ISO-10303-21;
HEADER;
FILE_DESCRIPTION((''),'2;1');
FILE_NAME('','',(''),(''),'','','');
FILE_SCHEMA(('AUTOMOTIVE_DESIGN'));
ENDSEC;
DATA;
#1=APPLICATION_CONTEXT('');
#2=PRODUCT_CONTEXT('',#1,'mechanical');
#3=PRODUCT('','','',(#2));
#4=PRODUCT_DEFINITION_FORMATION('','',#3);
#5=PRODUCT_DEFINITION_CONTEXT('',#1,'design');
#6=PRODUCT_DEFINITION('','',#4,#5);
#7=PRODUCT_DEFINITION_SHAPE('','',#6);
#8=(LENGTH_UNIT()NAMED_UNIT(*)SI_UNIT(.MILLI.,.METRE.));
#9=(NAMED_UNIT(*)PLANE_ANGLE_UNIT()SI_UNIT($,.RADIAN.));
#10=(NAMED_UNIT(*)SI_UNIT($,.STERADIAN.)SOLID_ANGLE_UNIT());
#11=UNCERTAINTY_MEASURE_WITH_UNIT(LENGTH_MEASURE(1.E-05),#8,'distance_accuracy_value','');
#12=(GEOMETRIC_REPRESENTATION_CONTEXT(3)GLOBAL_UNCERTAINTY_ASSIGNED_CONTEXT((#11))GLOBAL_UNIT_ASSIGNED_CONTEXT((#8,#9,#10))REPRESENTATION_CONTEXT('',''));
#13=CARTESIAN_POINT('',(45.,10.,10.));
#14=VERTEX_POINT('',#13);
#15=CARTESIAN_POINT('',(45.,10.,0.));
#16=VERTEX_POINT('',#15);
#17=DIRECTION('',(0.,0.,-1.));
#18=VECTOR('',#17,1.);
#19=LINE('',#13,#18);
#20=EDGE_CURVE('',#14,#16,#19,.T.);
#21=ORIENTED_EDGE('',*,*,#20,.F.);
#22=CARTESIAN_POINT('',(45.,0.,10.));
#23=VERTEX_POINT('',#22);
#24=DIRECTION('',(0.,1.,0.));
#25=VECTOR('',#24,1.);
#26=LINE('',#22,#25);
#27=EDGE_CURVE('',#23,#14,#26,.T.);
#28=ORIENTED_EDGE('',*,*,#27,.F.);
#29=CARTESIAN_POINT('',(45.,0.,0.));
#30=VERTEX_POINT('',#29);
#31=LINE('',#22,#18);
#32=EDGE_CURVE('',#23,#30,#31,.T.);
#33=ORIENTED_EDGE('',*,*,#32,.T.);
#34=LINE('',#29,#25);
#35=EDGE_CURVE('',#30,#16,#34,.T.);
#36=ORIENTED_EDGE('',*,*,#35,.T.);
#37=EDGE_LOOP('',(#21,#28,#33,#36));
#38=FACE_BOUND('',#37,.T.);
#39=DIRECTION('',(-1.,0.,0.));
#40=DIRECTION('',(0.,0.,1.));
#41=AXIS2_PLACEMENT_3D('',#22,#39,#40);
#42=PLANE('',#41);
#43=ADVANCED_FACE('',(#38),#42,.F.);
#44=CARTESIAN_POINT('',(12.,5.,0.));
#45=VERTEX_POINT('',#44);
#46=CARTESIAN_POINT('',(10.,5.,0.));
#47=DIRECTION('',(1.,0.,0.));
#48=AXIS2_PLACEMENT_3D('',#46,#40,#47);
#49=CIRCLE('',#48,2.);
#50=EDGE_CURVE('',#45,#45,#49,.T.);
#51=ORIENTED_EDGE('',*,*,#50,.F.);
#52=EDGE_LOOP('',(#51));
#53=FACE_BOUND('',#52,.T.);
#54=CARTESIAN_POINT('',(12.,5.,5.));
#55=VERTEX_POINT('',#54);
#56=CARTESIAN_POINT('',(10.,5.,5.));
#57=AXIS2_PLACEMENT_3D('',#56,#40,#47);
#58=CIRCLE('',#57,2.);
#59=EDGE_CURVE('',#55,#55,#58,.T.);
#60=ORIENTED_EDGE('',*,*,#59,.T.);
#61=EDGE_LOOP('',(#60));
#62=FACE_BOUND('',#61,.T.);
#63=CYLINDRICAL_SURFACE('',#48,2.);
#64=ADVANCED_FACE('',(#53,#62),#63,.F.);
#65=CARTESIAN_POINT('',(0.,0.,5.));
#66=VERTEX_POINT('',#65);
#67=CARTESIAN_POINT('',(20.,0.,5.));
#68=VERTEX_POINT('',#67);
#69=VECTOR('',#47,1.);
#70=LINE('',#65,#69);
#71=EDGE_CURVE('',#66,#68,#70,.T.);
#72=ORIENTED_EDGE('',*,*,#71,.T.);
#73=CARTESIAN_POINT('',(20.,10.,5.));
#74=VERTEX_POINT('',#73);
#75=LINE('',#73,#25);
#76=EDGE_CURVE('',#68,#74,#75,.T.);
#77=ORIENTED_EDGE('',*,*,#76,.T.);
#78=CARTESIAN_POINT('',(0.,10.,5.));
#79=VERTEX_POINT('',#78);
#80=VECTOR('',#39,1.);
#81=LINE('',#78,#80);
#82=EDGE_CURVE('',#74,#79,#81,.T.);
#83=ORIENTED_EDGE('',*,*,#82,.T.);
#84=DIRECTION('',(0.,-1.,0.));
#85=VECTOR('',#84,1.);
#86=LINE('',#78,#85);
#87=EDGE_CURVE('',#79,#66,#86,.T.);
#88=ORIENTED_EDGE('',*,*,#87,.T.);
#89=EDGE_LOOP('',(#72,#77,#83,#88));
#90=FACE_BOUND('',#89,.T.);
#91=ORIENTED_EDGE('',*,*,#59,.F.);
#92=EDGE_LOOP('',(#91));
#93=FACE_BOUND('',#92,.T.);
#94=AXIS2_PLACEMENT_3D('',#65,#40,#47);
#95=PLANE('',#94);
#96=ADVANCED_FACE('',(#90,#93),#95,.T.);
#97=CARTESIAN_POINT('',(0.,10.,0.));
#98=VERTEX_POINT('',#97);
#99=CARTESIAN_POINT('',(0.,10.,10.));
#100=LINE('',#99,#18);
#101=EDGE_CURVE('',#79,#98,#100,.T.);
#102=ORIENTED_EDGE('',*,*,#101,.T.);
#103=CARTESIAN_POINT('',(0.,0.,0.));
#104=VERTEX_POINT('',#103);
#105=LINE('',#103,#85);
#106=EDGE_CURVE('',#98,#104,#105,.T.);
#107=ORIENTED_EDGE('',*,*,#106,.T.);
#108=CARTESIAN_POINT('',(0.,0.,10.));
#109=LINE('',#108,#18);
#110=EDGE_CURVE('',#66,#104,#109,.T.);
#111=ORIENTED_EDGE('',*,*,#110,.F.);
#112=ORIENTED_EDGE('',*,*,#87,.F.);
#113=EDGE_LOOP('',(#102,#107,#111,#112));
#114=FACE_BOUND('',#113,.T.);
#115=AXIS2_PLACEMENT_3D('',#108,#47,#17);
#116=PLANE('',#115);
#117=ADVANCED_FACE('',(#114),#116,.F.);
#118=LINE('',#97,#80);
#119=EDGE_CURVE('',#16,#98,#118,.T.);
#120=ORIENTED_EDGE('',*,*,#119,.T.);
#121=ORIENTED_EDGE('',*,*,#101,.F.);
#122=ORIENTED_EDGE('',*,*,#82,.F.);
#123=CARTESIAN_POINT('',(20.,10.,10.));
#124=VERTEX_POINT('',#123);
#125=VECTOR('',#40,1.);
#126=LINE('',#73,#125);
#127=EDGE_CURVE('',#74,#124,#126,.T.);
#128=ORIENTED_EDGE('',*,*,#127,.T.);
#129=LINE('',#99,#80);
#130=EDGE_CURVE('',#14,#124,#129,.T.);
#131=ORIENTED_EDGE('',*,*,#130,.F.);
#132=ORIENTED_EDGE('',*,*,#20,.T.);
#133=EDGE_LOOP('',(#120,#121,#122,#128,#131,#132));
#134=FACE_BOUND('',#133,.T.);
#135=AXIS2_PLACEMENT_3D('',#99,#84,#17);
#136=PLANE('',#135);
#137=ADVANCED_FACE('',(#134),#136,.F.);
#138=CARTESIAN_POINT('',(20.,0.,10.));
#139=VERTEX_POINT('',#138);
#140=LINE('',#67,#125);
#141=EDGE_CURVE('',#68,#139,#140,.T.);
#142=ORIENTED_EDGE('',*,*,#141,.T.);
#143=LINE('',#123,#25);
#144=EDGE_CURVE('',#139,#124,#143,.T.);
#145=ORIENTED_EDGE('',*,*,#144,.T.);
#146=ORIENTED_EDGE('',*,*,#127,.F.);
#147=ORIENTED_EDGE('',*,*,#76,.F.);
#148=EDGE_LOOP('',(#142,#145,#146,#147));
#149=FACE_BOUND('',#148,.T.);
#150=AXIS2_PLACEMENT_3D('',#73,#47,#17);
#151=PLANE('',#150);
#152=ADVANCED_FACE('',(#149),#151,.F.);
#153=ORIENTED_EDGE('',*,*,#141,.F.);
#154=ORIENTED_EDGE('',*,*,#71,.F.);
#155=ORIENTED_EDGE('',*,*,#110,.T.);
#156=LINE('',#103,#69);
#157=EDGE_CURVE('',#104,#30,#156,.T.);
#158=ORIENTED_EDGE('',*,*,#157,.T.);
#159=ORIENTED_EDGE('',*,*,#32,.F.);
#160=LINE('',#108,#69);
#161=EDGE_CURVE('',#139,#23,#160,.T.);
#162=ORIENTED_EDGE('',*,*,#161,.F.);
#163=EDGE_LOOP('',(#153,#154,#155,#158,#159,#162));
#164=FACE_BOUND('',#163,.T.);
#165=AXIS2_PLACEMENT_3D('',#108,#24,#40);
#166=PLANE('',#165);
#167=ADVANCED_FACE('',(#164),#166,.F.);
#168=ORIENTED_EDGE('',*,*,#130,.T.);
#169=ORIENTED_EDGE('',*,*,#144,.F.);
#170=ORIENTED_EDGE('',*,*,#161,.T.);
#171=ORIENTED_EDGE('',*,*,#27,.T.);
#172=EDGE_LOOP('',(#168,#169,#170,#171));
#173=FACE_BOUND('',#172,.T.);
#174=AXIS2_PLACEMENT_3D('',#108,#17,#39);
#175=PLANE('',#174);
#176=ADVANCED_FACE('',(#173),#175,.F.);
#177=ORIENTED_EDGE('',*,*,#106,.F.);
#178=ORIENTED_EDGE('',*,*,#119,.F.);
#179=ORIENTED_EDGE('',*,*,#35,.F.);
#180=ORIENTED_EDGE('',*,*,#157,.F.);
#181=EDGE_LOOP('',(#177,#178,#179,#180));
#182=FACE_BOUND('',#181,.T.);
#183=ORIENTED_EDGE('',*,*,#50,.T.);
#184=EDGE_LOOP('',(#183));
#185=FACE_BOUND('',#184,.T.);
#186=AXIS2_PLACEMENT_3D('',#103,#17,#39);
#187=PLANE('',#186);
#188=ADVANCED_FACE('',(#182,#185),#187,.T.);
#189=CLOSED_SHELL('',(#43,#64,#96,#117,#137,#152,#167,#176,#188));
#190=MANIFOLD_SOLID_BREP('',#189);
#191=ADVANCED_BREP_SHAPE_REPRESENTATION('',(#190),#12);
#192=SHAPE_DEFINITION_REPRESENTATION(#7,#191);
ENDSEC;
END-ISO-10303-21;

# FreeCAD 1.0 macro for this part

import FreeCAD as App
import Part
import Sketcher
Q = App.Units.Quantity


def add_polygon(sketch, points):
    """Adds a closed chain of lines whose ends are joined by coincident constraints."""
    first, n = sketch.GeometryCount, len(points)
    for a, b in zip(points, points[1:] + points[:1]):
        sketch.addGeometry(Part.LineSegment(App.Vector(*a, 0), App.Vector(*b, 0)), False)
    for i in range(n):
        sketch.addConstraint(Sketcher.Constraint("Coincident", first + i, 2, first + (i + 1) % n, 1))

doc = App.newDocument("Part")
body = doc.addObject("PartDesign::Body", "Body")

# Sketch on XY plane
sketch1 = body.newObject("Sketcher::SketchObject", "Sketch")
sketch1.AttachmentSupport = (doc.getObject("XY_Plane"), [""])
sketch1.MapMode = "FlatFace"
add_polygon(sketch1, [(0, 10), (0, 0), (45, 0), (45, 10)])  # lines 0-3
sketch1.addConstraint([
    Sketcher.Constraint("Vertical", 0),
    Sketcher.Constraint("Horizontal", 1),
    Sketcher.Constraint("Vertical", 2),
    Sketcher.Constraint("Horizontal", 3),
    Sketcher.Constraint("Coincident", 0, 2, -1, 1),
    Sketcher.Constraint("DistanceX", 1, 1, 1, 2, Q("45 mm")),
    Sketcher.Constraint("DistanceY", 0, 2, 0, 1, Q("10 mm")),
])
pad1 = body.newObject("PartDesign::Pad", "Pad")
pad1.Profile = sketch1
pad1.Length = 10

# Sketch on XY plane
sketch2 = body.newObject("Sketcher::SketchObject", "Sketch001")
sketch2.AttachmentSupport = (doc.getObject("XY_Plane"), [""])
sketch2.MapMode = "FlatFace"
sketch2.AttachmentOffset = App.Placement(App.Vector(0, 0, 10), App.Rotation())
add_polygon(sketch2, [(0, 10), (0, 0), (20, 0), (20, 10)])  # lines 0-3
sketch2.addConstraint([
    Sketcher.Constraint("Vertical", 0),
    Sketcher.Constraint("Horizontal", 1),
    Sketcher.Constraint("Vertical", 2),
    Sketcher.Constraint("Horizontal", 3),
    Sketcher.Constraint("Coincident", 0, 2, -1, 1),
    Sketcher.Constraint("DistanceX", 1, 1, 1, 2, Q("20 mm")),
    Sketcher.Constraint("DistanceY", 0, 2, 0, 1, Q("10 mm")),
])
pocket1 = body.newObject("PartDesign::Pocket", "Pocket")
pocket1.Profile = sketch2
pocket1.Length = 5

# Sketch on XY plane
sketch3 = body.newObject("Sketcher::SketchObject", "Sketch002")
sketch3.AttachmentSupport = (doc.getObject("XY_Plane"), [""])
sketch3.MapMode = "FlatFace"
sketch3.AttachmentOffset = App.Placement(App.Vector(0, 0, 5), App.Rotation())
sketch3.addGeometry(Part.Circle(App.Vector(10, 5, 0), App.Vector(0, 0, 1), 2), False)
sketch3.addConstraint([
    Sketcher.Constraint("Diameter", 0, Q("4 mm")),
    Sketcher.Constraint("DistanceX", -1, 1, 0, 3, Q("10 mm")),
    Sketcher.Constraint("DistanceY", -1, 1, 0, 3, Q("5 mm")),
])
pocket2 = body.newObject("PartDesign::Pocket", "Pocket001")
pocket2.Profile = sketch3
pocket2.Length = 5

doc.recompute()
